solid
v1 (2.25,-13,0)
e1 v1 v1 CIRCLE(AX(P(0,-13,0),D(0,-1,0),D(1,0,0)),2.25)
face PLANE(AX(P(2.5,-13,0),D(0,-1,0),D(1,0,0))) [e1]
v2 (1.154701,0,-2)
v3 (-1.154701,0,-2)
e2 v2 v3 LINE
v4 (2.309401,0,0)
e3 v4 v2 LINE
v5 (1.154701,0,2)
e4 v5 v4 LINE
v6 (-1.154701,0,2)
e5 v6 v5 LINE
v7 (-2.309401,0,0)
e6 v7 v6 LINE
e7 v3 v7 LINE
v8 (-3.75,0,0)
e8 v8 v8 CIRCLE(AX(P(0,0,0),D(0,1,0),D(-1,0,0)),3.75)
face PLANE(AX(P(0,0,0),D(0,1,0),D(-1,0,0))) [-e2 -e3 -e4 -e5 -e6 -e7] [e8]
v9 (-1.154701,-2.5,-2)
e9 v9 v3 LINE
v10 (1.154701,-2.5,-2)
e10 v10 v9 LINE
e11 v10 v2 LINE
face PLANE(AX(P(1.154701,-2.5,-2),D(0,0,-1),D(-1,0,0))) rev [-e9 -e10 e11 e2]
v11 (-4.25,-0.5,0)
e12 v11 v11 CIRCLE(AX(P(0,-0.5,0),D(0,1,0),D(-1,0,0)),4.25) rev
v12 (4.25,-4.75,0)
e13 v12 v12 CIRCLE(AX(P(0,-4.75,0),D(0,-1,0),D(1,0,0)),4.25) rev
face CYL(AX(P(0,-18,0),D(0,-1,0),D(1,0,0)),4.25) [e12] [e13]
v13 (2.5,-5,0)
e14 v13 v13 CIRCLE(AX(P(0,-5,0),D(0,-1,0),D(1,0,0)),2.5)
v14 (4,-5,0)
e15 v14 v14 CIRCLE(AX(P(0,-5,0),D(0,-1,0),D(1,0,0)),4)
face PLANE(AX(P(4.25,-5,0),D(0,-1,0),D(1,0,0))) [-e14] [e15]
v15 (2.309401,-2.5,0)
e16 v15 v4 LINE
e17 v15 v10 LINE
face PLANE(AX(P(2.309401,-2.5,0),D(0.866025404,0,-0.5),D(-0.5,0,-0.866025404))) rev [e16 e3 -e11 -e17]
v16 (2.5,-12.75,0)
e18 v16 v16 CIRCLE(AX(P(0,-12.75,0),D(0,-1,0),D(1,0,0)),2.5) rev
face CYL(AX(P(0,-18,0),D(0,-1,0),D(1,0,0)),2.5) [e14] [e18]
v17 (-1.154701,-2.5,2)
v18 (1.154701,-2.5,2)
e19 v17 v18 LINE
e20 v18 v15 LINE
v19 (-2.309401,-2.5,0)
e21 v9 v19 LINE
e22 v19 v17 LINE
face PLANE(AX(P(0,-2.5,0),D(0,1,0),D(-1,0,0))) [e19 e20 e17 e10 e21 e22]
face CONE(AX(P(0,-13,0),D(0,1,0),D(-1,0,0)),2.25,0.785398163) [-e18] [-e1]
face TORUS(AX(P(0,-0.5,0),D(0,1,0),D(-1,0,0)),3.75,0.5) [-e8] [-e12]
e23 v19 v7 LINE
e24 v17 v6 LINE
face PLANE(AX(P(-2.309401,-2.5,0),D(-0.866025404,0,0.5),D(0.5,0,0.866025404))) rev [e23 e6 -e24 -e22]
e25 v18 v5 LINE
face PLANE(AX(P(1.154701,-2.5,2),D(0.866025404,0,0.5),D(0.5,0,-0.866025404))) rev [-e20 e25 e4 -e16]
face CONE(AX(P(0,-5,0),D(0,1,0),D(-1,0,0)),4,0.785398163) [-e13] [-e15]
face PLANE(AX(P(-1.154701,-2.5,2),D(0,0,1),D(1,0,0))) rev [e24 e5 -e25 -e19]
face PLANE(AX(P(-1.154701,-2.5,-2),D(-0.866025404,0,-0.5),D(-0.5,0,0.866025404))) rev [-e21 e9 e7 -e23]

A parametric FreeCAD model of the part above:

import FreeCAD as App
import Part
import Sketcher
Q = App.Units.Quantity


def edges_at(feature, points):
    """Names of the edges that pass closest to the given points."""
    edges = feature.Shape.Edges
    near = lambda p: min(range(len(edges)), key=lambda i: edges[i].distToShape(Part.Vertex(*p))[0])
    return sorted({f"Edge{near(p) + 1}" for p in points})

doc = App.newDocument("Part")
params = doc.addObject("Spreadsheet::Sheet", "Params")
for row, (alias, value) in enumerate([
    ("sketch1_height", "13 mm"),
    ("sketch1_height2", "8 mm"),
    ("sketch1_width", "2.5 mm"),
    ("sketch1_width2", "4.25 mm"),
    ("revolution_angle", "360 deg"),
    ("pocket1_length", "2.5 mm"),
    ("fillet_radius", "0.5 mm"),
    ("chamfer_size", "0.25 mm"),
    ("chamfer2_size", "0.25 mm"),
], start=1):
    params.set(f"A{row}", alias)
    params.set(f"B{row}", "=" + value)
    params.setAlias(f"B{row}", alias)

body = doc.addObject("PartDesign::Body", "Body")

# Sketch on XY plane
sketch1 = doc.addObject("Sketcher::SketchObject", "Sketch")
body.addObject(sketch1)
sketch1.AttachmentSupport = (doc.XY_Plane, [""])
sketch1.MapMode = "FlatFace"
sketch1.addGeometry(Part.LineSegment(App.Vector(4.2, 0, 0), App.Vector(0, 0, 0)), False)
sketch1.addGeometry(Part.LineSegment(App.Vector(0, 0, 0), App.Vector(0, -13, 0)), False)
sketch1.addGeometry(Part.LineSegment(App.Vector(0, -13, 0), App.Vector(2.5, -13, 0)), False)
sketch1.addGeometry(Part.LineSegment(App.Vector(2.5, -13, 0), App.Vector(2.5, -5, 0)), False)
sketch1.addGeometry(Part.LineSegment(App.Vector(2.5, -5, 0), App.Vector(4.2, -5, 0)), False)
sketch1.addGeometry(Part.LineSegment(App.Vector(4.2, -5, 0), App.Vector(4.2, 0, 0)), False)
sketch1.addConstraint(Sketcher.Constraint("Coincident", 0, 2, 1, 1))
sketch1.addConstraint(Sketcher.Constraint("Coincident", 1, 2, 2, 1))
sketch1.addConstraint(Sketcher.Constraint("Coincident", 2, 2, 3, 1))
sketch1.addConstraint(Sketcher.Constraint("Coincident", 3, 2, 4, 1))
sketch1.addConstraint(Sketcher.Constraint("Coincident", 4, 2, 5, 1))
sketch1.addConstraint(Sketcher.Constraint("Coincident", 5, 2, 0, 1))
sketch1.addConstraint(Sketcher.Constraint("Horizontal", 0))
sketch1.addConstraint(Sketcher.Constraint("Vertical", 1))
sketch1.addConstraint(Sketcher.Constraint("Horizontal", 2))
sketch1.addConstraint(Sketcher.Constraint("Vertical", 3))
sketch1.addConstraint(Sketcher.Constraint("Horizontal", 4))
sketch1.addConstraint(Sketcher.Constraint("Vertical", 5))
sketch1.addConstraint(Sketcher.Constraint("Coincident", 0, 2, -1, 1))
sketch1.addConstraint(Sketcher.Constraint("DistanceY", 1, 2, 1, 1, 13.0))
sketch1.addConstraint(Sketcher.Constraint("DistanceY", 3, 1, 3, 2, 8.0))
sketch1.addConstraint(Sketcher.Constraint("DistanceX", 2, 1, 2, 2, 2.5))
sketch1.addConstraint(Sketcher.Constraint("DistanceX", 0, 2, 0, 1, 4.25))
sketch1.setExpression("Constraints[13]", "Params.sketch1_height")
sketch1.setExpression("Constraints[14]", "Params.sketch1_height2")
sketch1.setExpression("Constraints[15]", "Params.sketch1_width")
sketch1.setExpression("Constraints[16]", "Params.sketch1_width2")
revolution = doc.addObject("PartDesign::Revolution", "Revolution")
body.addObject(revolution)
revolution.Profile = sketch1
revolution.ReferenceAxis = (sketch1, ["V_Axis"])
revolution.setExpression("Angle", "Params.revolution_angle")

# Sketch on XZ plane
sketch2 = doc.addObject("Sketcher::SketchObject", "Sketch001")
body.addObject(sketch2)
sketch2.AttachmentSupport = (doc.XZ_Plane, [""])
sketch2.MapMode = "FlatFace"
sketch2.addGeometry(Part.LineSegment(App.Vector(2.3, 0, 0), App.Vector(1.2, -2, 0)), False)
sketch2.addGeometry(Part.LineSegment(App.Vector(1.2, -2, 0), App.Vector(-1.2, -2, 0)), False)
sketch2.addGeometry(Part.LineSegment(App.Vector(-1.2, -2, 0), App.Vector(-2.3, 0, 0)), False)
sketch2.addGeometry(Part.LineSegment(App.Vector(-2.3, 0, 0), App.Vector(-1.2, 2, 0)), False)
sketch2.addGeometry(Part.LineSegment(App.Vector(-1.2, 2, 0), App.Vector(1.2, 2, 0)), False)
sketch2.addGeometry(Part.LineSegment(App.Vector(1.2, 2, 0), App.Vector(2.3, 0, 0)), False)
sketch2.addConstraint(Sketcher.Constraint("Coincident", 0, 2, 1, 1))
sketch2.addConstraint(Sketcher.Constraint("Coincident", 1, 2, 2, 1))
sketch2.addConstraint(Sketcher.Constraint("Coincident", 2, 2, 3, 1))
sketch2.addConstraint(Sketcher.Constraint("Coincident", 3, 2, 4, 1))
sketch2.addConstraint(Sketcher.Constraint("Coincident", 4, 2, 5, 1))
sketch2.addConstraint(Sketcher.Constraint("Coincident", 5, 2, 0, 1))
sketch2.addConstraint(Sketcher.Constraint("Horizontal", 1))
sketch2.addConstraint(Sketcher.Constraint("Horizontal", 4))
sketch2.addConstraint(Sketcher.Constraint("Symmetric", 0, 2, 3, 2, -1, 1))
sketch2.addConstraint(Sketcher.Constraint("Symmetric", 2, 2, 5, 2, -1, 1))
sketch2.addConstraint(Sketcher.Constraint("PointOnObject", 2, 2, -1))
sketch2.addConstraint(Sketcher.Constraint("Parallel", 2, 5))
sketch2.addConstraint(Sketcher.Constraint("Vertical", 1, 2, 3, 2))
sketch2.addConstraint(Sketcher.Constraint("Angle", 0, Q("-120 deg")))
sketch2.addConstraint(Sketcher.Constraint("DistanceY", 0, 2, -1, 1, 2.0))
sketch2.addConstraint(Sketcher.Constraint("DistanceX", 1, 2, 1, 1, 2.309401))
pocket1 = doc.addObject("PartDesign::Pocket", "Pocket")
body.addObject(pocket1)
pocket1.Profile = sketch2
pocket1.setExpression("Length", "Params.pocket1_length")
pocket1.Reversed = True
doc.recompute()

fillet = doc.addObject("PartDesign::Fillet", "Fillet")
body.addObject(fillet)
fillet.Base = (pocket1, edges_at(pocket1, [(-4.25, 0, 0)]))
fillet.setExpression("Radius", "Params.fillet_radius")
doc.recompute()

chamfer = doc.addObject("PartDesign::Chamfer", "Chamfer")
body.addObject(chamfer)
chamfer.Base = (fillet, edges_at(fillet, [(-4.25, -5, 0)]))
chamfer.setExpression("Size", "Params.chamfer_size")
doc.recompute()

chamfer2 = doc.addObject("PartDesign::Chamfer", "Chamfer001")
body.addObject(chamfer2)
chamfer2.Base = (chamfer, edges_at(chamfer, [(-2.5, -13, 0)]))
chamfer2.setExpression("Size", "Params.chamfer2_size")

doc.recompute()
